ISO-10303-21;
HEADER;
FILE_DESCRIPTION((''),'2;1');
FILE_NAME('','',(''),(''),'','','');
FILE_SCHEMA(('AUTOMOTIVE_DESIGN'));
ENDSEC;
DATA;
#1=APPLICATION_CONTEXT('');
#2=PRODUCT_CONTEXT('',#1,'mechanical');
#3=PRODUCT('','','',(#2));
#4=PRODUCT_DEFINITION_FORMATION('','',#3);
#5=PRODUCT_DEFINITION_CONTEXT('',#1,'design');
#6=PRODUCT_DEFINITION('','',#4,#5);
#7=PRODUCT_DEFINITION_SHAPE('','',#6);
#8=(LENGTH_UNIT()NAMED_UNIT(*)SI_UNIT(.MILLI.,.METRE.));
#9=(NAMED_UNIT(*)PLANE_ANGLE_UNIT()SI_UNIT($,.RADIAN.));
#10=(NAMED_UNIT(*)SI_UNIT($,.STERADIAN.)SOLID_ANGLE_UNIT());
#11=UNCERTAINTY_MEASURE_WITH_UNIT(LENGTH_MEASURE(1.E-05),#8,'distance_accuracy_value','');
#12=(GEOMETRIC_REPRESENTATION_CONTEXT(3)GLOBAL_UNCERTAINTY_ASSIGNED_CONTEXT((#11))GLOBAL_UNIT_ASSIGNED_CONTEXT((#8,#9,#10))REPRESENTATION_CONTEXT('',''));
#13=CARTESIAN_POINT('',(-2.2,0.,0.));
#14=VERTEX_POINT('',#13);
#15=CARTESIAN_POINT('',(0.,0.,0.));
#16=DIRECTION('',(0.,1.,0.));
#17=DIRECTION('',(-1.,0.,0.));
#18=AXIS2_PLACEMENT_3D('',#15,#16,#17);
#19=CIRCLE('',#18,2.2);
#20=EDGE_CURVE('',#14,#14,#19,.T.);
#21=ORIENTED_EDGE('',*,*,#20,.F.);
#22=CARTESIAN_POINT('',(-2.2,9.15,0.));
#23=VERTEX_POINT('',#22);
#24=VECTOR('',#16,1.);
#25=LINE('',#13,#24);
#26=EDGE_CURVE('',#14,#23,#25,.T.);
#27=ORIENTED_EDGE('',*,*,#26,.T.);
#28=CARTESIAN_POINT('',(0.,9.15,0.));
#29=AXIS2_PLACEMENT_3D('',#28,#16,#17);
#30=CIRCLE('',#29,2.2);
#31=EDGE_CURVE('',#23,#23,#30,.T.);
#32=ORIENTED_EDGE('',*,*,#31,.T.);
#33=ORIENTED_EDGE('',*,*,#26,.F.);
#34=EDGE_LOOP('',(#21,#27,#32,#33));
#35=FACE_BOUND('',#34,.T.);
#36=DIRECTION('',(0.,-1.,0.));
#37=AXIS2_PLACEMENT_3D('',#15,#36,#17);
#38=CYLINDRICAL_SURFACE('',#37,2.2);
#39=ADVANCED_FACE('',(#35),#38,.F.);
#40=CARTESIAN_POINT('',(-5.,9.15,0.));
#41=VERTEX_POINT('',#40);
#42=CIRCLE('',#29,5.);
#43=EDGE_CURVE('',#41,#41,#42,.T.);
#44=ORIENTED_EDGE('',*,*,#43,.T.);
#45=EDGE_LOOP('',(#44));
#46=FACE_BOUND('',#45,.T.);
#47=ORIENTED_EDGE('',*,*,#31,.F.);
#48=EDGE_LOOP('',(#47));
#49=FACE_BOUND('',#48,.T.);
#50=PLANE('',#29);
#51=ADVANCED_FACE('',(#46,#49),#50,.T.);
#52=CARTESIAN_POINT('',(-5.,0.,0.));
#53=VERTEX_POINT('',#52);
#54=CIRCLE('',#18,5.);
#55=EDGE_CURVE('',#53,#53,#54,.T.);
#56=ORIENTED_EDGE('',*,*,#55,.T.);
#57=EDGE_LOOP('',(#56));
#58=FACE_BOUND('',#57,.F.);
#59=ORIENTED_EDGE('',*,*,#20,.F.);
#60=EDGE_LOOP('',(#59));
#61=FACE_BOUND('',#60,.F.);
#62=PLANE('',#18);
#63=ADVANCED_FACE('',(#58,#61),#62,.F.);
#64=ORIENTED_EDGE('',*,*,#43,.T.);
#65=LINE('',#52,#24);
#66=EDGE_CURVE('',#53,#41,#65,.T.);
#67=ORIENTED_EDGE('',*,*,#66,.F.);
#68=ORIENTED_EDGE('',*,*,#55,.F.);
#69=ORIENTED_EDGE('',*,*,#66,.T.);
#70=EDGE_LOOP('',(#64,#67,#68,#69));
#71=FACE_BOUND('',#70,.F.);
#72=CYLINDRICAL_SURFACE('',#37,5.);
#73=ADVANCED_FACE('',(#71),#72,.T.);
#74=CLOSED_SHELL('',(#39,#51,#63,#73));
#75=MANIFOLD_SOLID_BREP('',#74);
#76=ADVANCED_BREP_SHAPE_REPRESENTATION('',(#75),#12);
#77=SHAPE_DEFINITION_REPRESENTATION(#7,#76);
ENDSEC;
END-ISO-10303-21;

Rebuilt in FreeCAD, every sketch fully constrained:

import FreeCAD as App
import Part
import Sketcher

doc = App.newDocument("Part")
params = doc.addObject("Spreadsheet::Sheet", "Params")
for row, (alias, value) in enumerate([
    ("sketch1_diameter", "10 mm"),
    ("sketch1_diameter2", "4.4 mm"),
    ("pad1_length", "9.15 mm"),
], start=1):
    params.set(f"A{row}", alias)
    params.set(f"B{row}", "=" + value)
    params.setAlias(f"B{row}", alias)

body = doc.addObject("PartDesign::Body", "Body")

sketch1 = doc.addObject("Sketcher::SketchObject", "Sketch")
body.addObject(sketch1)
sketch1.AttachmentSupport = (doc.XZ_Plane, [""])
sketch1.MapMode = "FlatFace"
sketch1.addGeometry([
    Part.Circle(App.Vector(0, 0, 0), App.Vector(0, 0, 1), 5),
    Part.Circle(App.Vector(0, 0, 0), App.Vector(0, 0, 1), 2.2),
], False)
sketch1.addConstraint([
    Sketcher.Constraint("Coincident", 0, 3, -1, 1),
    Sketcher.Constraint("Coincident", 1, 3, -1, 1),
    Sketcher.Constraint("Diameter", 0, 10.0),
    Sketcher.Constraint("Diameter", 1, 4.4),
])
sketch1.setExpression("Constraints[2]", "Params.sketch1_diameter")
sketch1.setExpression("Constraints[3]", "Params.sketch1_diameter2")
pad1 = doc.addObject("PartDesign::Pad", "Pad")
body.addObject(pad1)
pad1.Profile = sketch1
pad1.setExpression("Length", "Params.pad1_length")
pad1.Reversed = True

doc.recompute()
